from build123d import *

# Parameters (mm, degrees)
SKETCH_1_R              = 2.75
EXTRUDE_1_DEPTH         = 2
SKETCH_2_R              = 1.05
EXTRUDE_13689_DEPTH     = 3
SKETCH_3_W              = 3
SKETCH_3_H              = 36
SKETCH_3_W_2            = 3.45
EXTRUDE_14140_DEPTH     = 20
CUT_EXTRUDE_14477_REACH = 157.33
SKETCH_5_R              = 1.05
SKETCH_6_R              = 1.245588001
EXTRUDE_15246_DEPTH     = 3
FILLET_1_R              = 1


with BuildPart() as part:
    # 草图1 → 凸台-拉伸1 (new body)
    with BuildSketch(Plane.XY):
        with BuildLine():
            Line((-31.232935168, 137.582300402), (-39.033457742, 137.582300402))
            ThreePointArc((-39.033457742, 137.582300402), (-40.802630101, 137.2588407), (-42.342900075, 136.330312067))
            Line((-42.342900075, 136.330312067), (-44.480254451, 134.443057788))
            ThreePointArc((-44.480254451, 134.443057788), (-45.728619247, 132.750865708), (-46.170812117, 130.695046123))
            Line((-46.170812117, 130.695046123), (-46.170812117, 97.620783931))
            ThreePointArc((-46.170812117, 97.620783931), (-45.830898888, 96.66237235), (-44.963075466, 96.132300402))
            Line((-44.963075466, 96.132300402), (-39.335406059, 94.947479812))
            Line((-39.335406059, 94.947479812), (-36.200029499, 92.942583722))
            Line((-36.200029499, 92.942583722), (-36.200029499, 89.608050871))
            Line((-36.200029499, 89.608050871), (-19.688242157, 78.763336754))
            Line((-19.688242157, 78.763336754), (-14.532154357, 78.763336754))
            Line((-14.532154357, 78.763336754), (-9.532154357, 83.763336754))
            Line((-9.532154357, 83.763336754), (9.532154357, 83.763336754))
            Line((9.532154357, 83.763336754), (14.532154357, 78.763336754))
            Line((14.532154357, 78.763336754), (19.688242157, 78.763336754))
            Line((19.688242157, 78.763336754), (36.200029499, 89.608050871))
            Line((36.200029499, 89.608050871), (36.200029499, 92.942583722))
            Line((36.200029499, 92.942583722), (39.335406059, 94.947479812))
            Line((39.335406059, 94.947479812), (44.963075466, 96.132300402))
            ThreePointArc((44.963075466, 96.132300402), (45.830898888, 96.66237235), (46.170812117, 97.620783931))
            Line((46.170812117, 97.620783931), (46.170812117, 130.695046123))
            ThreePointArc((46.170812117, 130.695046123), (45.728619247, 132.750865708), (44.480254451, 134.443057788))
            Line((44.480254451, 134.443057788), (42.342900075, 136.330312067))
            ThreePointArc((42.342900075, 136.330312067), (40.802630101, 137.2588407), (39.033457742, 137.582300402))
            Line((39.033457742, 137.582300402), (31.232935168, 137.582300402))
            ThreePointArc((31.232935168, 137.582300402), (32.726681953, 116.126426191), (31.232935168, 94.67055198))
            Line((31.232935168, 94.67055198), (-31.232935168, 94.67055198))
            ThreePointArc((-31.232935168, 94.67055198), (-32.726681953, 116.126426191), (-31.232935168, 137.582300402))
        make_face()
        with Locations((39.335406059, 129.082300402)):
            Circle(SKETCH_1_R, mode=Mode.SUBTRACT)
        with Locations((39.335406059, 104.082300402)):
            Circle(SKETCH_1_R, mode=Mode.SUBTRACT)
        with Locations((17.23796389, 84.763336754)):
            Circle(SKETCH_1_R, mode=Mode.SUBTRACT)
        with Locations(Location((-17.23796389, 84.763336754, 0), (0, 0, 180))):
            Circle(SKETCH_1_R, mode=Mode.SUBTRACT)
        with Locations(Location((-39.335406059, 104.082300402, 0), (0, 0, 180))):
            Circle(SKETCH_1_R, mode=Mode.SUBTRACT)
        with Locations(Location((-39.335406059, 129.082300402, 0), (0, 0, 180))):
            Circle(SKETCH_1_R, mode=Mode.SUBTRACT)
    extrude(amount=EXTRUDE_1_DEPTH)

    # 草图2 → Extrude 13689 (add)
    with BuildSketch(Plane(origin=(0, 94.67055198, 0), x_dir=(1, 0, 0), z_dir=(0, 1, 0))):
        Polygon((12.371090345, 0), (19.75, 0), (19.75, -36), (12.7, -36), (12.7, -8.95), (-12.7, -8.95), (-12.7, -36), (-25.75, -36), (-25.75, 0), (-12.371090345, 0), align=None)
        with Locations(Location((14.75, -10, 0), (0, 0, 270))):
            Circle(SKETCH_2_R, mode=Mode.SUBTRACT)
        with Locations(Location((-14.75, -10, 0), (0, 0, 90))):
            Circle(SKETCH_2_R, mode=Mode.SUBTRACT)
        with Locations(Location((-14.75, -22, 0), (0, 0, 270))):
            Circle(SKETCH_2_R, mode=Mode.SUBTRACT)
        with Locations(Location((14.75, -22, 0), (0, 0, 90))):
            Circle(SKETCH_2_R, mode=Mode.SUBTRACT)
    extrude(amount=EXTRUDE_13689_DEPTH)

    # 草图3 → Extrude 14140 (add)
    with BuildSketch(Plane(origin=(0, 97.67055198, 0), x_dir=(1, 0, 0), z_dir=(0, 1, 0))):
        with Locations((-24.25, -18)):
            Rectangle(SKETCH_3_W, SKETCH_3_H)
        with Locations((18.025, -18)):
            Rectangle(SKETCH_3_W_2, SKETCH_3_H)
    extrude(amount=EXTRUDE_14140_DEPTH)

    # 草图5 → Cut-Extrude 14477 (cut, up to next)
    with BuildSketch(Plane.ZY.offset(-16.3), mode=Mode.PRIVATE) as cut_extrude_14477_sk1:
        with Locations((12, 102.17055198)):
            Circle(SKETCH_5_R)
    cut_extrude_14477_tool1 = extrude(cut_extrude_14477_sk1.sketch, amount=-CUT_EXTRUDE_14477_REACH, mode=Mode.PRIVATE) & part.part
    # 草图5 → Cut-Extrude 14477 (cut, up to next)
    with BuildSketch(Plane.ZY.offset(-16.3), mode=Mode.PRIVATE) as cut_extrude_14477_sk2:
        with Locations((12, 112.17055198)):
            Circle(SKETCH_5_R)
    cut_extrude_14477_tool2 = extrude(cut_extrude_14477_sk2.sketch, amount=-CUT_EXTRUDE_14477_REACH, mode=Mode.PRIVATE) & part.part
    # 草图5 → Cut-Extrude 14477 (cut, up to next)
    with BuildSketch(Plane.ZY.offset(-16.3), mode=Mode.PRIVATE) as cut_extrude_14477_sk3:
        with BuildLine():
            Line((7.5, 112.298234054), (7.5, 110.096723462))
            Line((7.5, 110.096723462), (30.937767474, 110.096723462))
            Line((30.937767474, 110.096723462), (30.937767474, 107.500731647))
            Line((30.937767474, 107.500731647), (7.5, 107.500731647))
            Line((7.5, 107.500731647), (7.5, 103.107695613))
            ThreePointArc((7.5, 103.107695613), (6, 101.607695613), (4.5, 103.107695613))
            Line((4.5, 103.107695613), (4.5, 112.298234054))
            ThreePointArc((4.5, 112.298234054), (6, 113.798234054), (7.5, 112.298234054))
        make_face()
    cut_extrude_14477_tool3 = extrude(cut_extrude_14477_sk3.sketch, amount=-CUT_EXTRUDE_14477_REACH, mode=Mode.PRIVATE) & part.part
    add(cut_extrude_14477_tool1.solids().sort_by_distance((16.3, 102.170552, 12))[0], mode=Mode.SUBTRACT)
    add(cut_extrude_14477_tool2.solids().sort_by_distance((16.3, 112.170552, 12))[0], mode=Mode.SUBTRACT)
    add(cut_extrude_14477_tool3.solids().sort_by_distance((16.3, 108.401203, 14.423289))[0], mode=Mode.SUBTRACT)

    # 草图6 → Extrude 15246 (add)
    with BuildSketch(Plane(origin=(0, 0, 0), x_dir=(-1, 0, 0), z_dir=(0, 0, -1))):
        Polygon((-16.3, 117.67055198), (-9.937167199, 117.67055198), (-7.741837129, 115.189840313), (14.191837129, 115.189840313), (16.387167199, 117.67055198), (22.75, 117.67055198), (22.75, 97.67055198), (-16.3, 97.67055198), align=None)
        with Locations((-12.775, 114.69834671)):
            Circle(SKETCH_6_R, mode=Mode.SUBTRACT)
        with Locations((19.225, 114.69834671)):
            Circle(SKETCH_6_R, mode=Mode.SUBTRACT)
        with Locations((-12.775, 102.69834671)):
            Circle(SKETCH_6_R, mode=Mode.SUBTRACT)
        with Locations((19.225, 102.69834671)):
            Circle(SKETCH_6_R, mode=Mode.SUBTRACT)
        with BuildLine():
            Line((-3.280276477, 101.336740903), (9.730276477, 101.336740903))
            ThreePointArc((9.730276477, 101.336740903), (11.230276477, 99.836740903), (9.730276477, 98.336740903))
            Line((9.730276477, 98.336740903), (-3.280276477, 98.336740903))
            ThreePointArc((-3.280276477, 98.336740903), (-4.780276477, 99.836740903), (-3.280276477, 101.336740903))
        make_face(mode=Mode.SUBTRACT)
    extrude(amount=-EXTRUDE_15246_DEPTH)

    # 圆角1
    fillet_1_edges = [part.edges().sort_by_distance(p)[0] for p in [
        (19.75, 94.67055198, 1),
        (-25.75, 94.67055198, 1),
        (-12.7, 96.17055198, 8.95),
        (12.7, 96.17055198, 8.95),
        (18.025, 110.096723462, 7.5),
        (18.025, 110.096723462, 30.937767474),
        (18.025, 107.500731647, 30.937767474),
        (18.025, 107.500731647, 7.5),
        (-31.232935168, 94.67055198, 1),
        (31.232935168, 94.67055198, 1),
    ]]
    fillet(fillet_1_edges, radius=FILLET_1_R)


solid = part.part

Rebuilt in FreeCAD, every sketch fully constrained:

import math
import FreeCAD as App
import Part
import Sketcher


def edges_at(feature, points):
    """Names of the edges that pass closest to the given points."""
    edges = feature.Shape.Edges
    near = lambda p: min(range(len(edges)), key=lambda i: edges[i].distToShape(Part.Vertex(*p))[0])
    return sorted({f"Edge{near(p) + 1}" for p in points})

doc = App.newDocument("Part")
body = doc.addObject("PartDesign::Body", "Body")

# Sketch on XY plane
sketch1 = body.newObject("Sketcher::SketchObject", "Sketch")
sketch1.AttachmentSupport = (doc.getObject("XY_Plane"), [""])
sketch1.MapMode = "FlatFace"
sketch1.addGeometry([
    Part.LineSegment(App.Vector(-31.2, 137.6, 0), App.Vector(-39, 137.6, 0)),  # 0
    Part.ArcOfCircle(Part.Circle(App.Vector(-39, 132.6, 0), App.Vector(0, 0, 1), 5), math.radians(90), math.radians(131)),  # 1
    Part.LineSegment(App.Vector(-42.3, 136.3, 0), App.Vector(-44.5, 134.4, 0)),  # 2
    Part.ArcOfCircle(Part.Circle(App.Vector(-41.2, 130.7, 0), App.Vector(0, 0, 1), 5), math.radians(131), math.radians(180)),  # 3
    Part.LineSegment(App.Vector(-46.2, 130.7, 0), App.Vector(-46.2, 97.6, 0)),  # 4
    Part.ArcOfCircle(Part.Circle(App.Vector(-44.6, 97.6, 0), App.Vector(0, 0, 1), 1.5), math.radians(180), math.radians(258)),  # 5
    Part.LineSegment(App.Vector(-45, 96.1, 0), App.Vector(-39.3, 94.9, 0)),  # 6
    Part.LineSegment(App.Vector(-39.3, 94.9, 0), App.Vector(-36.2, 92.9, 0)),  # 7
    Part.LineSegment(App.Vector(-36.2, 92.9, 0), App.Vector(-36.2, 89.6, 0)),  # 8
    Part.LineSegment(App.Vector(-36.2, 89.6, 0), App.Vector(-19.7, 78.8, 0)),  # 9
    Part.LineSegment(App.Vector(-19.7, 78.8, 0), App.Vector(-14.5, 78.8, 0)),  # 10
    Part.LineSegment(App.Vector(-14.5, 78.8, 0), App.Vector(-9.5, 83.8, 0)),  # 11
    Part.LineSegment(App.Vector(-9.5, 83.8, 0), App.Vector(9.5, 83.8, 0)),  # 12
    Part.LineSegment(App.Vector(9.5, 83.8, 0), App.Vector(14.5, 78.8, 0)),  # 13
    Part.LineSegment(App.Vector(14.5, 78.8, 0), App.Vector(19.7, 78.8, 0)),  # 14
    Part.LineSegment(App.Vector(19.7, 78.8, 0), App.Vector(36.2, 89.6, 0)),  # 15
    Part.LineSegment(App.Vector(36.2, 89.6, 0), App.Vector(36.2, 92.9, 0)),  # 16
    Part.LineSegment(App.Vector(36.2, 92.9, 0), App.Vector(39.3, 94.9, 0)),  # 17
    Part.LineSegment(App.Vector(39.3, 94.9, 0), App.Vector(45, 96.1, 0)),  # 18
    Part.ArcOfCircle(Part.Circle(App.Vector(44.6, 97.6, 0), App.Vector(0, 0, 1), 1.5), math.radians(-78), math.radians(0)),  # 19
    Part.LineSegment(App.Vector(46.2, 97.6, 0), App.Vector(46.2, 130.7, 0)),  # 20
    Part.ArcOfCircle(Part.Circle(App.Vector(41.2, 130.7, 0), App.Vector(0, 0, 1), 5), math.radians(0), math.radians(49)),  # 21
    Part.LineSegment(App.Vector(44.5, 134.4, 0), App.Vector(42.3, 136.3, 0)),  # 22
    Part.ArcOfCircle(Part.Circle(App.Vector(39, 132.6, 0), App.Vector(0, 0, 1), 5), math.radians(49), math.radians(90)),  # 23
    Part.LineSegment(App.Vector(39, 137.6, 0), App.Vector(31.2, 137.6, 0)),  # 24
    Part.ArcOfCircle(Part.Circle(App.Vector(-122.1, 116.1, 0), App.Vector(0, 0, 1), 154.8), math.radians(-7.96), math.radians(7.96)),  # 25
    Part.LineSegment(App.Vector(31.2, 94.7, 0), App.Vector(-31.2, 94.7, 0)),  # 26
    Part.ArcOfCircle(Part.Circle(App.Vector(122.1, 116.1, 0), App.Vector(0, 0, 1), 154.8), math.radians(172.04), math.radians(187.96)),  # 27
    Part.Circle(App.Vector(-17.2, 84.8, 0), App.Vector(0, 0, 1), 2.8),  # 28
    Part.Circle(App.Vector(-39.3, 104.1, 0), App.Vector(0, 0, 1), 2.8),  # 29
    Part.Circle(App.Vector(17.2, 84.8, 0), App.Vector(0, 0, 1), 2.8),  # 30
    Part.Circle(App.Vector(39.3, 104.1, 0), App.Vector(0, 0, 1), 2.8),  # 31
    Part.Circle(App.Vector(-39.3, 129.1, 0), App.Vector(0, 0, 1), 2.8),  # 32
    Part.Circle(App.Vector(39.3, 129.1, 0), App.Vector(0, 0, 1), 2.8),  # 33
], False)
sketch1.addConstraint([
    Sketcher.Constraint("Tangent", 0, 2, 1, 1),
    Sketcher.Constraint("Tangent", 1, 2, 2, 1),
    Sketcher.Constraint("Tangent", 2, 2, 3, 1),
    Sketcher.Constraint("Tangent", 3, 2, 4, 1),
    Sketcher.Constraint("Tangent", 4, 2, 5, 1),
    Sketcher.Constraint("Tangent", 5, 2, 6, 1),
    Sketcher.Constraint("Coincident", 6, 2, 7, 1),
    Sketcher.Constraint("Coincident", 7, 2, 8, 1),
    Sketcher.Constraint("Coincident", 8, 2, 9, 1),
    Sketcher.Constraint("Coincident", 9, 2, 10, 1),
    Sketcher.Constraint("Coincident", 10, 2, 11, 1),
    Sketcher.Constraint("Coincident", 11, 2, 12, 1),
    Sketcher.Constraint("Coincident", 12, 2, 13, 1),
    Sketcher.Constraint("Coincident", 13, 2, 14, 1),
    Sketcher.Constraint("Coincident", 14, 2, 15, 1),
    Sketcher.Constraint("Coincident", 15, 2, 16, 1),
    Sketcher.Constraint("Coincident", 16, 2, 17, 1),
    Sketcher.Constraint("Coincident", 17, 2, 18, 1),
    Sketcher.Constraint("Tangent", 18, 2, 19, 1),
    Sketcher.Constraint("Tangent", 19, 2, 20, 1),
    Sketcher.Constraint("Tangent", 20, 2, 21, 1),
    Sketcher.Constraint("Tangent", 21, 2, 22, 1),
    Sketcher.Constraint("Tangent", 22, 2, 23, 1),
    Sketcher.Constraint("Tangent", 23, 2, 24, 1),
    Sketcher.Constraint("Coincident", 24, 2, 25, 2),
    Sketcher.Constraint("Coincident", 25, 1, 26, 1),
    Sketcher.Constraint("Coincident", 26, 2, 27, 2),
    Sketcher.Constraint("Coincident", 27, 1, 0, 1),
    Sketcher.Constraint("Horizontal", 0),
    Sketcher.Constraint("Vertical", 4),
    Sketcher.Constraint("Vertical", 8),
    Sketcher.Constraint("Horizontal", 10),
    Sketcher.Constraint("Horizontal", 12),
    Sketcher.Constraint("Horizontal", 14),
    Sketcher.Constraint("Vertical", 16),
    Sketcher.Constraint("Vertical", 20),
    Sketcher.Constraint("Horizontal", 24),
    Sketcher.Constraint("Horizontal", 26),
    Sketcher.Constraint("Equal", 1, 3),
    Sketcher.Constraint("Equal", 5, 19),
    Sketcher.Constraint("Equal", 3, 21),
    Sketcher.Constraint("Equal", 21, 23),
    Sketcher.Constraint("Equal", 25, 27),
    Sketcher.Constraint("Equal", 28, 29),
    Sketcher.Constraint("Equal", 29, 30),
    Sketcher.Constraint("Equal", 30, 31),
    Sketcher.Constraint("Equal", 31, 32),
    Sketcher.Constraint("Equal", 32, 33),
    Sketcher.Constraint("Symmetric", 5, 3, 19, 3, -2),
    Sketcher.Constraint("Symmetric", 1, 3, 23, 3, -2),
    Sketcher.Constraint("Symmetric", 25, 3, 27, 3, -2),
    Sketcher.Constraint("Symmetric", 28, 3, 30, 3, -2),
    Sketcher.Constraint("Symmetric", 29, 3, 31, 3, -2),
    Sketcher.Constraint("Symmetric", 32, 3, 33, 3, -2),
    Sketcher.Constraint("Symmetric", 10, 2, 13, 2, -2),
    Sketcher.Constraint("Symmetric", 8, 2, 15, 2, -2),
    Sketcher.Constraint("Symmetric", 6, 2, 17, 2, -2),
    Sketcher.Constraint("Perpendicular", 11, 13),
    Sketcher.Constraint("Horizontal", 3, 3, 21, 3),
    Sketcher.Constraint("Horizontal", 7, 2, 16, 2),
    Sketcher.Constraint("Vertical", 29, 3, 32, 3),
    Sketcher.Constraint("Vertical", 32, 3, 6, 2),
    Sketcher.Constraint("Vertical", 24, 2, 25, 1),
    Sketcher.Constraint("Equal", 10, 14),
    Sketcher.Constraint("Equal", 11, 13),
    Sketcher.Constraint("Radius", 1, 5.0),
    Sketcher.Constraint("Diameter", 28, 5.5),
    Sketcher.Constraint("DistanceY", 29, 3, 32, 3, 25.0),
    Sketcher.Constraint("DistanceY", 9, 2, 28, 3, 6.0),
    Sketcher.Constraint("DistanceX", 10, 2, 11, 2, 5.0),
    Sketcher.Constraint("DistanceY", 29, 3, 1, 3, 28.5),
    Sketcher.Constraint("DistanceY", 5, 2, 29, 3, 7.95),
    Sketcher.Constraint("Radius", 5, 1.521114),
    Sketcher.Constraint("Radius", 25, 154.840774),
    Sketcher.Constraint("DistanceX", 12, 1, 12, 2, 19.064309),
    Sketcher.Constraint("DistanceX", 26, 2, 26, 1, 62.46587),
    Sketcher.Constraint("DistanceY", -1, 1, 1, 3, 132.5823),
    Sketcher.Constraint("DistanceX", 1, 2, -1, 1, 42.3429),
    Sketcher.Constraint("DistanceY", 7, 2, 5, 3, 4.6782),
    Sketcher.Constraint("DistanceY", 15, 2, 25, 1, 5.062501),
    Sketcher.Constraint("Distance", 6, 5.75104),
    Sketcher.Constraint("Distance", 9, 19.754669),
    Sketcher.Constraint("DistanceX", 0, 2, 0, 1, 7.800523),
    Sketcher.Constraint("DistanceX", 10, 1, 10, 2, 5.156088),
    Sketcher.Constraint("DistanceY", 4, 2, 4, 1, 33.074262),
    Sketcher.Constraint("DistanceY", 8, 2, 8, 1, 3.334533),
    Sketcher.Constraint("DistanceY", -1, 1, 6, 2, 94.94748),
    Sketcher.Constraint("DistanceX", 7, 2, -1, 1, 36.200029),
    Sketcher.Constraint("DistanceX", 3, 3, 28, 3, 23.932848),
])
pad1 = body.newObject("PartDesign::Pad", "Pad")
pad1.Profile = sketch1
pad1.Length = 2

# Sketch on XZ plane
sketch2 = body.newObject("Sketcher::SketchObject", "Sketch001")
sketch2.AttachmentSupport = (doc.getObject("XZ_Plane"), [""])
sketch2.MapMode = "FlatFace"
sketch2.AttachmentOffset = App.Placement(App.Vector(0, 0, -94.670552), App.Rotation())
sketch2.addGeometry([
    Part.LineSegment(App.Vector(19.8, 0, 0), App.Vector(-25.8, 0, 0)),  # 0
    Part.LineSegment(App.Vector(-25.8, 0, 0), App.Vector(-25.8, 36, 0)),  # 1
    Part.LineSegment(App.Vector(-25.8, 36, 0), App.Vector(-12.7, 36, 0)),  # 2
    Part.LineSegment(App.Vector(-12.7, 36, 0), App.Vector(-12.7, 8.9, 0)),  # 3
    Part.LineSegment(App.Vector(-12.7, 8.9, 0), App.Vector(12.7, 8.9, 0)),  # 4
    Part.LineSegment(App.Vector(12.7, 8.9, 0), App.Vector(12.7, 36, 0)),  # 5
    Part.LineSegment(App.Vector(12.7, 36, 0), App.Vector(19.8, 36, 0)),  # 6
    Part.LineSegment(App.Vector(19.8, 36, 0), App.Vector(19.8, 0, 0)),  # 7
    Part.Circle(App.Vector(14.8, 22, 0), App.Vector(0, 0, 1), 1.1),  # 8
    Part.Circle(App.Vector(-14.8, 22, 0), App.Vector(0, 0, 1), 1.1),  # 9
    Part.Circle(App.Vector(14.8, 10, 0), App.Vector(0, 0, 1), 1.1),  # 10
    Part.Circle(App.Vector(-14.8, 10, 0), App.Vector(0, 0, 1), 1.1),  # 11
], False)
sketch2.addConstraint([
    Sketcher.Constraint("Coincident", 0, 2, 1, 1),
    Sketcher.Constraint("Coincident", 1, 2, 2, 1),
    Sketcher.Constraint("Coincident", 2, 2, 3, 1),
    Sketcher.Constraint("Coincident", 3, 2, 4, 1),
    Sketcher.Constraint("Coincident", 4, 2, 5, 1),
    Sketcher.Constraint("Coincident", 5, 2, 6, 1),
    Sketcher.Constraint("Coincident", 6, 2, 7, 1),
    Sketcher.Constraint("Coincident", 7, 2, 0, 1),
    Sketcher.Constraint("Horizontal", 0),
    Sketcher.Constraint("Vertical", 1),
    Sketcher.Constraint("Horizontal", 2),
    Sketcher.Constraint("Vertical", 3),
    Sketcher.Constraint("Horizontal", 4),
    Sketcher.Constraint("Vertical", 5),
    Sketcher.Constraint("Horizontal", 6),
    Sketcher.Constraint("Vertical", 7),
    Sketcher.Constraint("Equal", 8, 9),
    Sketcher.Constraint("Equal", 9, 10),
    Sketcher.Constraint("Equal", 10, 11),
    Sketcher.Constraint("Symmetric", 8, 3, 9, 3, -2),
    Sketcher.Constraint("Symmetric", 10, 3, 11, 3, -2),
    Sketcher.Constraint("Symmetric", 2, 2, 5, 2, -2),
    Sketcher.Constraint("PointOnObject", 0, 2, -1),
    Sketcher.Constraint("Vertical", 8, 3, 10, 3),
    Sketcher.Constraint("Diameter", 8, 2.1),
    Sketcher.Constraint("DistanceY", 1, 1, 1, 2, 36.0),
    Sketcher.Constraint("DistanceX", 0, 2, 0, 1, 45.5),
    Sketcher.Constraint("DistanceX", 4, 1, 4, 2, 25.4),
    Sketcher.Constraint("DistanceY", -1, 1, 8, 3, 22.0),
    Sketcher.Constraint("DistanceY", -1, 1, 10, 3, 10.0),
    Sketcher.Constraint("DistanceX", 0, 2, 11, 3, 11.0),
    Sketcher.Constraint("DistanceX", 8, 3, 6, 2, 5.0),
    Sketcher.Constraint("DistanceY", 3, 2, 3, 1, 27.05),
])
pad2 = body.newObject("PartDesign::Pad", "Pad001")
pad2.Profile = sketch2
pad2.Length = 3
pad2.Reversed = True

# Sketch on XZ plane
sketch3 = body.newObject("Sketcher::SketchObject", "Sketch002")
sketch3.AttachmentSupport = (doc.getObject("XZ_Plane"), [""])
sketch3.MapMode = "FlatFace"
sketch3.AttachmentOffset = App.Placement(App.Vector(0, 0, -97.670552), App.Rotation())
sketch3.addGeometry([
    Part.LineSegment(App.Vector(-25.8, 0, 0), App.Vector(-25.8, 36, 0)),  # 0
    Part.LineSegment(App.Vector(-25.8, 36, 0), App.Vector(-22.8, 36, 0)),  # 1
    Part.LineSegment(App.Vector(-22.8, 36, 0), App.Vector(-22.8, 0, 0)),  # 2
    Part.LineSegment(App.Vector(-22.8, 0, 0), App.Vector(-25.8, 0, 0)),  # 3
    Part.LineSegment(App.Vector(16.3, 0, 0), App.Vector(16.3, 36, 0)),  # 4
    Part.LineSegment(App.Vector(16.3, 36, 0), App.Vector(19.8, 36, 0)),  # 5
    Part.LineSegment(App.Vector(19.8, 36, 0), App.Vector(19.8, 0, 0)),  # 6
    Part.LineSegment(App.Vector(19.8, 0, 0), App.Vector(16.3, 0, 0)),  # 7
], False)
sketch3.addConstraint([
    Sketcher.Constraint("Coincident", 0, 2, 1, 1),
    Sketcher.Constraint("Coincident", 1, 2, 2, 1),
    Sketcher.Constraint("Coincident", 2, 2, 3, 1),
    Sketcher.Constraint("Coincident", 3, 2, 0, 1),
    Sketcher.Constraint("Coincident", 4, 2, 5, 1),
    Sketcher.Constraint("Coincident", 5, 2, 6, 1),
    Sketcher.Constraint("Coincident", 6, 2, 7, 1),
    Sketcher.Constraint("Coincident", 7, 2, 4, 1),
    Sketcher.Constraint("Vertical", 0),
    Sketcher.Constraint("Horizontal", 1),
    Sketcher.Constraint("Vertical", 2),
    Sketcher.Constraint("Horizontal", 3),
    Sketcher.Constraint("Vertical", 4),
    Sketcher.Constraint("Horizontal", 5),
    Sketcher.Constraint("Vertical", 6),
    Sketcher.Constraint("Horizontal", 7),
    Sketcher.Constraint("PointOnObject", 2, 2, -1),
    Sketcher.Constraint("PointOnObject", 6, 2, -1),
    Sketcher.Constraint("Horizontal", 1, 2, 4, 2),
    Sketcher.Constraint("DistanceX", 1, 1, 1, 2, 3.0),
    Sketcher.Constraint("DistanceY", 0, 1, 0, 2, 36.0),
    Sketcher.Constraint("DistanceX", 5, 1, 5, 2, 3.45),
    Sketcher.Constraint("DistanceX", -1, 1, 4, 2, 16.3),
    Sketcher.Constraint("DistanceX", 1, 2, 5, 2, 42.5),
])
pad3 = body.newObject("PartDesign::Pad", "Pad002")
pad3.Profile = sketch3
pad3.Length = 20
pad3.Reversed = True

# Sketch on YZ plane
sketch4 = body.newObject("Sketcher::SketchObject", "Sketch003")
sketch4.AttachmentSupport = (doc.getObject("YZ_Plane"), [""])
sketch4.MapMode = "FlatFace"
sketch4.AttachmentOffset = App.Placement(App.Vector(0, 0, 16.3), App.Rotation())
sketch4.addGeometry(Part.Circle(App.Vector(102.2, 12, 0), App.Vector(0, 0, 1), 1.1), False)
sketch4.addConstraint([
    Sketcher.Constraint("Diameter", 0, 2.1),
    Sketcher.Constraint("DistanceY", -1, 1, 0, 3, 12.0),
    Sketcher.Constraint("DistanceX", -1, 1, 0, 3, 102.170552),
])
pocket1 = body.newObject("PartDesign::Pocket", "Pocket")
pocket1.Profile = sketch4
pocket1.Type = "UpToFirst"
pocket1.Reversed = True

# Sketch on YZ plane
sketch5 = body.newObject("Sketcher::SketchObject", "Sketch004")
sketch5.AttachmentSupport = (doc.getObject("YZ_Plane"), [""])
sketch5.MapMode = "FlatFace"
sketch5.AttachmentOffset = App.Placement(App.Vector(0, 0, 16.3), App.Rotation())
sketch5.addGeometry(Part.Circle(App.Vector(112.2, 12, 0), App.Vector(0, 0, 1), 1.1), False)
sketch5.addConstraint([
    Sketcher.Constraint("Diameter", 0, 2.1),
    Sketcher.Constraint("DistanceY", -1, 1, 0, 3, 12.0),
    Sketcher.Constraint("DistanceX", -1, 1, 0, 3, 112.170552),
])
pocket2 = body.newObject("PartDesign::Pocket", "Pocket001")
pocket2.Profile = sketch5
pocket2.Type = "UpToFirst"
pocket2.Reversed = True

# Sketch on YZ plane
sketch6 = body.newObject("Sketcher::SketchObject", "Sketch005")
sketch6.AttachmentSupport = (doc.getObject("YZ_Plane"), [""])
sketch6.MapMode = "FlatFace"
sketch6.AttachmentOffset = App.Placement(App.Vector(0, 0, 16.3), App.Rotation())
sketch6.addGeometry([
    Part.LineSegment(App.Vector(110.1, 7.5, 0), App.Vector(112.3, 7.5, 0)),  # 0
    Part.ArcOfCircle(Part.Circle(App.Vector(112.3, 6, 0), App.Vector(0, 0, 1), 1.5), math.radians(-90), math.radians(90)),  # 1
    Part.LineSegment(App.Vector(112.3, 4.5, 0), App.Vector(103.1, 4.5, 0)),  # 2
    Part.ArcOfCircle(Part.Circle(App.Vector(103.1, 6, 0), App.Vector(0, 0, 1), 1.5), math.radians(90), math.radians(270)),  # 3
    Part.LineSegment(App.Vector(103.1, 7.5, 0), App.Vector(107.5, 7.5, 0)),  # 4
    Part.LineSegment(App.Vector(107.5, 7.5, 0), App.Vector(107.5, 30.9, 0)),  # 5
    Part.LineSegment(App.Vector(107.5, 30.9, 0), App.Vector(110.1, 30.9, 0)),  # 6
    Part.LineSegment(App.Vector(110.1, 30.9, 0), App.Vector(110.1, 7.5, 0)),  # 7
], False)
sketch6.addConstraint([
    Sketcher.Constraint("Tangent", 0, 2, 1, 2),
    Sketcher.Constraint("Tangent", 1, 1, 2, 1),
    Sketcher.Constraint("Tangent", 2, 2, 3, 2),
    Sketcher.Constraint("Tangent", 3, 1, 4, 1),
    Sketcher.Constraint("Coincident", 4, 2, 5, 1),
    Sketcher.Constraint("Coincident", 5, 2, 6, 1),
    Sketcher.Constraint("Coincident", 6, 2, 7, 1),
    Sketcher.Constraint("Coincident", 7, 2, 0, 1),
    Sketcher.Constraint("Horizontal", 0),
    Sketcher.Constraint("Horizontal", 2),
    Sketcher.Constraint("Horizontal", 4),
    Sketcher.Constraint("Vertical", 5),
    Sketcher.Constraint("Horizontal", 6),
    Sketcher.Constraint("Vertical", 7),
    Sketcher.Constraint("Equal", 1, 3),
    Sketcher.Constraint("Radius", 1, 1.5),
    Sketcher.Constraint("DistanceY", -1, 1, 1, 3, 6.0),
    Sketcher.Constraint("DistanceX", 0, 1, 0, 2, 2.201511),
    Sketcher.Constraint("DistanceX", 2, 2, 2, 1, 9.190538),
    Sketcher.Constraint("DistanceX", 6, 1, 6, 2, 2.595992),
    Sketcher.Constraint("DistanceY", 5, 1, 5, 2, 23.437767),
    Sketcher.Constraint("DistanceX", -1, 1, 4, 2, 107.500732),
])
pocket3 = body.newObject("PartDesign::Pocket", "Pocket002")
pocket3.Profile = sketch6
pocket3.Type = "UpToFirst"
pocket3.Reversed = True

# Sketch on XY plane
sketch7 = body.newObject("Sketcher::SketchObject", "Sketch006")
sketch7.AttachmentSupport = (doc.getObject("XY_Plane"), [""])
sketch7.MapMode = "FlatFace"
sketch7.addGeometry([
    Part.LineSegment(App.Vector(9.9, 117.7, 0), App.Vector(16.3, 117.7, 0)),  # 0
    Part.LineSegment(App.Vector(16.3, 117.7, 0), App.Vector(16.3, 97.7, 0)),  # 1
    Part.LineSegment(App.Vector(16.3, 97.7, 0), App.Vector(-22.8, 97.7, 0)),  # 2
    Part.LineSegment(App.Vector(-22.8, 97.7, 0), App.Vector(-22.8, 117.7, 0)),  # 3
    Part.LineSegment(App.Vector(-22.8, 117.7, 0), App.Vector(-16.4, 117.7, 0)),  # 4
    Part.LineSegment(App.Vector(-16.4, 117.7, 0), App.Vector(-14.2, 115.2, 0)),  # 5
    Part.LineSegment(App.Vector(-14.2, 115.2, 0), App.Vector(7.7, 115.2, 0)),  # 6
    Part.LineSegment(App.Vector(7.7, 115.2, 0), App.Vector(9.9, 117.7, 0)),  # 7
    Part.Circle(App.Vector(-19.2, 102.7, 0), App.Vector(0, 0, 1), 1.2),  # 8
    Part.LineSegment(App.Vector(3.3, 101.3, 0), App.Vector(-9.7, 101.3, 0)),  # 9
    Part.ArcOfCircle(Part.Circle(App.Vector(-9.7, 99.8, 0), App.Vector(0, 0, 1), 1.5), math.radians(90), math.radians(270)),  # 10
    Part.LineSegment(App.Vector(-9.7, 98.3, 0), App.Vector(3.3, 98.3, 0)),  # 11
    Part.ArcOfCircle(Part.Circle(App.Vector(3.3, 99.8, 0), App.Vector(0, 0, 1), 1.5), math.radians(-90), math.radians(90)),  # 12
    Part.Circle(App.Vector(12.8, 102.7, 0), App.Vector(0, 0, 1), 1.2),  # 13
    Part.Circle(App.Vector(-19.2, 114.7, 0), App.Vector(0, 0, 1), 1.2),  # 14
    Part.Circle(App.Vector(12.8, 114.7, 0), App.Vector(0, 0, 1), 1.2),  # 15
], False)
sketch7.addConstraint([
    Sketcher.Constraint("Coincident", 0, 2, 1, 1),
    Sketcher.Constraint("Coincident", 1, 2, 2, 1),
    Sketcher.Constraint("Coincident", 2, 2, 3, 1),
    Sketcher.Constraint("Coincident", 3, 2, 4, 1),
    Sketcher.Constraint("Coincident", 4, 2, 5, 1),
    Sketcher.Constraint("Coincident", 5, 2, 6, 1),
    Sketcher.Constraint("Coincident", 6, 2, 7, 1),
    Sketcher.Constraint("Coincident", 7, 2, 0, 1),
    Sketcher.Constraint("Tangent", 9, 2, 10, 1),
    Sketcher.Constraint("Tangent", 10, 2, 11, 1),
    Sketcher.Constraint("Tangent", 11, 2, 12, 1),
    Sketcher.Constraint("Tangent", 12, 2, 9, 1),
    Sketcher.Constraint("Horizontal", 0),
    Sketcher.Constraint("Vertical", 1),
    Sketcher.Constraint("Horizontal", 2),
    Sketcher.Constraint("Vertical", 3),
    Sketcher.Constraint("Horizontal", 4),
    Sketcher.Constraint("Horizontal", 6),
    Sketcher.Constraint("Horizontal", 9),
    Sketcher.Constraint("Horizontal", 11),
    Sketcher.Constraint("Equal", 8, 13),
    Sketcher.Constraint("Equal", 13, 14),
    Sketcher.Constraint("Equal", 14, 15),
    Sketcher.Constraint("Horizontal", 8, 3, 13, 3),
    Sketcher.Constraint("Horizontal", 14, 3, 15, 3),
    Sketcher.Constraint("Horizontal", 0, 2, 3, 2),
    Sketcher.Constraint("Vertical", 8, 3, 14, 3),
    Sketcher.Constraint("Vertical", 13, 3, 15, 3),
    Sketcher.Constraint("Equal", 0, 4),
    Sketcher.Constraint("Equal", 5, 7),
    Sketcher.Constraint("Radius", 10, 1.5),
    Sketcher.Constraint("DistanceY", 1, 2, 1, 1, 20.0),
    Sketcher.Constraint("DistanceX", 8, 3, 13, 3, 32.0),
    Sketcher.Constraint("DistanceY", 8, 3, 14, 3, 12.0),
    Sketcher.Constraint("DistanceX", 2, 2, 2, 1, 39.05),
    Sketcher.Constraint("DistanceX", -1, 1, 0, 2, 16.3),
    Sketcher.Constraint("Diameter", 8, 2.491176),
    Sketcher.Constraint("DistanceX", 8, 3, -1, 1, 19.225),
    Sketcher.Constraint("DistanceY", 10, 3, 5, 2, 15.353099),
    Sketcher.Constraint("DistanceX", 0, 1, 0, 2, 6.362833),
    Sketcher.Constraint("DistanceX", 6, 1, 6, 2, 21.933674),
    Sketcher.Constraint("DistanceX", 9, 2, 9, 1, 13.010553),
    Sketcher.Constraint("DistanceY", -1, 1, 10, 3, 99.836741),
    Sketcher.Constraint("DistanceY", -1, 1, 0, 2, 117.670552),
    Sketcher.Constraint("DistanceX", 4, 2, 10, 3, 6.656891),
    Sketcher.Constraint("DistanceY", -1, 1, 8, 3, 102.698347),
])
pad4 = body.newObject("PartDesign::Pad", "Pad003")
pad4.Profile = sketch7
pad4.Length = 3
doc.recompute()

fillet = body.newObject("PartDesign::Fillet", "Fillet")
fillet.Base = (pad4, edges_at(pad4, [
    (19.75, 94.671, 1),
    (-25.75, 94.671, 1),
    (-12.7, 96.171, 8.95),
    (12.7, 96.171, 8.95),
    (18.025, 110.097, 7.5),
    (18.025, 110.097, 30.938),
    (18.025, 107.501, 30.938),
    (18.025, 107.501, 7.5),
    (-31.233, 94.671, 1),
    (31.233, 94.671, 1),
]))
fillet.Radius = 1

doc.recompute()
